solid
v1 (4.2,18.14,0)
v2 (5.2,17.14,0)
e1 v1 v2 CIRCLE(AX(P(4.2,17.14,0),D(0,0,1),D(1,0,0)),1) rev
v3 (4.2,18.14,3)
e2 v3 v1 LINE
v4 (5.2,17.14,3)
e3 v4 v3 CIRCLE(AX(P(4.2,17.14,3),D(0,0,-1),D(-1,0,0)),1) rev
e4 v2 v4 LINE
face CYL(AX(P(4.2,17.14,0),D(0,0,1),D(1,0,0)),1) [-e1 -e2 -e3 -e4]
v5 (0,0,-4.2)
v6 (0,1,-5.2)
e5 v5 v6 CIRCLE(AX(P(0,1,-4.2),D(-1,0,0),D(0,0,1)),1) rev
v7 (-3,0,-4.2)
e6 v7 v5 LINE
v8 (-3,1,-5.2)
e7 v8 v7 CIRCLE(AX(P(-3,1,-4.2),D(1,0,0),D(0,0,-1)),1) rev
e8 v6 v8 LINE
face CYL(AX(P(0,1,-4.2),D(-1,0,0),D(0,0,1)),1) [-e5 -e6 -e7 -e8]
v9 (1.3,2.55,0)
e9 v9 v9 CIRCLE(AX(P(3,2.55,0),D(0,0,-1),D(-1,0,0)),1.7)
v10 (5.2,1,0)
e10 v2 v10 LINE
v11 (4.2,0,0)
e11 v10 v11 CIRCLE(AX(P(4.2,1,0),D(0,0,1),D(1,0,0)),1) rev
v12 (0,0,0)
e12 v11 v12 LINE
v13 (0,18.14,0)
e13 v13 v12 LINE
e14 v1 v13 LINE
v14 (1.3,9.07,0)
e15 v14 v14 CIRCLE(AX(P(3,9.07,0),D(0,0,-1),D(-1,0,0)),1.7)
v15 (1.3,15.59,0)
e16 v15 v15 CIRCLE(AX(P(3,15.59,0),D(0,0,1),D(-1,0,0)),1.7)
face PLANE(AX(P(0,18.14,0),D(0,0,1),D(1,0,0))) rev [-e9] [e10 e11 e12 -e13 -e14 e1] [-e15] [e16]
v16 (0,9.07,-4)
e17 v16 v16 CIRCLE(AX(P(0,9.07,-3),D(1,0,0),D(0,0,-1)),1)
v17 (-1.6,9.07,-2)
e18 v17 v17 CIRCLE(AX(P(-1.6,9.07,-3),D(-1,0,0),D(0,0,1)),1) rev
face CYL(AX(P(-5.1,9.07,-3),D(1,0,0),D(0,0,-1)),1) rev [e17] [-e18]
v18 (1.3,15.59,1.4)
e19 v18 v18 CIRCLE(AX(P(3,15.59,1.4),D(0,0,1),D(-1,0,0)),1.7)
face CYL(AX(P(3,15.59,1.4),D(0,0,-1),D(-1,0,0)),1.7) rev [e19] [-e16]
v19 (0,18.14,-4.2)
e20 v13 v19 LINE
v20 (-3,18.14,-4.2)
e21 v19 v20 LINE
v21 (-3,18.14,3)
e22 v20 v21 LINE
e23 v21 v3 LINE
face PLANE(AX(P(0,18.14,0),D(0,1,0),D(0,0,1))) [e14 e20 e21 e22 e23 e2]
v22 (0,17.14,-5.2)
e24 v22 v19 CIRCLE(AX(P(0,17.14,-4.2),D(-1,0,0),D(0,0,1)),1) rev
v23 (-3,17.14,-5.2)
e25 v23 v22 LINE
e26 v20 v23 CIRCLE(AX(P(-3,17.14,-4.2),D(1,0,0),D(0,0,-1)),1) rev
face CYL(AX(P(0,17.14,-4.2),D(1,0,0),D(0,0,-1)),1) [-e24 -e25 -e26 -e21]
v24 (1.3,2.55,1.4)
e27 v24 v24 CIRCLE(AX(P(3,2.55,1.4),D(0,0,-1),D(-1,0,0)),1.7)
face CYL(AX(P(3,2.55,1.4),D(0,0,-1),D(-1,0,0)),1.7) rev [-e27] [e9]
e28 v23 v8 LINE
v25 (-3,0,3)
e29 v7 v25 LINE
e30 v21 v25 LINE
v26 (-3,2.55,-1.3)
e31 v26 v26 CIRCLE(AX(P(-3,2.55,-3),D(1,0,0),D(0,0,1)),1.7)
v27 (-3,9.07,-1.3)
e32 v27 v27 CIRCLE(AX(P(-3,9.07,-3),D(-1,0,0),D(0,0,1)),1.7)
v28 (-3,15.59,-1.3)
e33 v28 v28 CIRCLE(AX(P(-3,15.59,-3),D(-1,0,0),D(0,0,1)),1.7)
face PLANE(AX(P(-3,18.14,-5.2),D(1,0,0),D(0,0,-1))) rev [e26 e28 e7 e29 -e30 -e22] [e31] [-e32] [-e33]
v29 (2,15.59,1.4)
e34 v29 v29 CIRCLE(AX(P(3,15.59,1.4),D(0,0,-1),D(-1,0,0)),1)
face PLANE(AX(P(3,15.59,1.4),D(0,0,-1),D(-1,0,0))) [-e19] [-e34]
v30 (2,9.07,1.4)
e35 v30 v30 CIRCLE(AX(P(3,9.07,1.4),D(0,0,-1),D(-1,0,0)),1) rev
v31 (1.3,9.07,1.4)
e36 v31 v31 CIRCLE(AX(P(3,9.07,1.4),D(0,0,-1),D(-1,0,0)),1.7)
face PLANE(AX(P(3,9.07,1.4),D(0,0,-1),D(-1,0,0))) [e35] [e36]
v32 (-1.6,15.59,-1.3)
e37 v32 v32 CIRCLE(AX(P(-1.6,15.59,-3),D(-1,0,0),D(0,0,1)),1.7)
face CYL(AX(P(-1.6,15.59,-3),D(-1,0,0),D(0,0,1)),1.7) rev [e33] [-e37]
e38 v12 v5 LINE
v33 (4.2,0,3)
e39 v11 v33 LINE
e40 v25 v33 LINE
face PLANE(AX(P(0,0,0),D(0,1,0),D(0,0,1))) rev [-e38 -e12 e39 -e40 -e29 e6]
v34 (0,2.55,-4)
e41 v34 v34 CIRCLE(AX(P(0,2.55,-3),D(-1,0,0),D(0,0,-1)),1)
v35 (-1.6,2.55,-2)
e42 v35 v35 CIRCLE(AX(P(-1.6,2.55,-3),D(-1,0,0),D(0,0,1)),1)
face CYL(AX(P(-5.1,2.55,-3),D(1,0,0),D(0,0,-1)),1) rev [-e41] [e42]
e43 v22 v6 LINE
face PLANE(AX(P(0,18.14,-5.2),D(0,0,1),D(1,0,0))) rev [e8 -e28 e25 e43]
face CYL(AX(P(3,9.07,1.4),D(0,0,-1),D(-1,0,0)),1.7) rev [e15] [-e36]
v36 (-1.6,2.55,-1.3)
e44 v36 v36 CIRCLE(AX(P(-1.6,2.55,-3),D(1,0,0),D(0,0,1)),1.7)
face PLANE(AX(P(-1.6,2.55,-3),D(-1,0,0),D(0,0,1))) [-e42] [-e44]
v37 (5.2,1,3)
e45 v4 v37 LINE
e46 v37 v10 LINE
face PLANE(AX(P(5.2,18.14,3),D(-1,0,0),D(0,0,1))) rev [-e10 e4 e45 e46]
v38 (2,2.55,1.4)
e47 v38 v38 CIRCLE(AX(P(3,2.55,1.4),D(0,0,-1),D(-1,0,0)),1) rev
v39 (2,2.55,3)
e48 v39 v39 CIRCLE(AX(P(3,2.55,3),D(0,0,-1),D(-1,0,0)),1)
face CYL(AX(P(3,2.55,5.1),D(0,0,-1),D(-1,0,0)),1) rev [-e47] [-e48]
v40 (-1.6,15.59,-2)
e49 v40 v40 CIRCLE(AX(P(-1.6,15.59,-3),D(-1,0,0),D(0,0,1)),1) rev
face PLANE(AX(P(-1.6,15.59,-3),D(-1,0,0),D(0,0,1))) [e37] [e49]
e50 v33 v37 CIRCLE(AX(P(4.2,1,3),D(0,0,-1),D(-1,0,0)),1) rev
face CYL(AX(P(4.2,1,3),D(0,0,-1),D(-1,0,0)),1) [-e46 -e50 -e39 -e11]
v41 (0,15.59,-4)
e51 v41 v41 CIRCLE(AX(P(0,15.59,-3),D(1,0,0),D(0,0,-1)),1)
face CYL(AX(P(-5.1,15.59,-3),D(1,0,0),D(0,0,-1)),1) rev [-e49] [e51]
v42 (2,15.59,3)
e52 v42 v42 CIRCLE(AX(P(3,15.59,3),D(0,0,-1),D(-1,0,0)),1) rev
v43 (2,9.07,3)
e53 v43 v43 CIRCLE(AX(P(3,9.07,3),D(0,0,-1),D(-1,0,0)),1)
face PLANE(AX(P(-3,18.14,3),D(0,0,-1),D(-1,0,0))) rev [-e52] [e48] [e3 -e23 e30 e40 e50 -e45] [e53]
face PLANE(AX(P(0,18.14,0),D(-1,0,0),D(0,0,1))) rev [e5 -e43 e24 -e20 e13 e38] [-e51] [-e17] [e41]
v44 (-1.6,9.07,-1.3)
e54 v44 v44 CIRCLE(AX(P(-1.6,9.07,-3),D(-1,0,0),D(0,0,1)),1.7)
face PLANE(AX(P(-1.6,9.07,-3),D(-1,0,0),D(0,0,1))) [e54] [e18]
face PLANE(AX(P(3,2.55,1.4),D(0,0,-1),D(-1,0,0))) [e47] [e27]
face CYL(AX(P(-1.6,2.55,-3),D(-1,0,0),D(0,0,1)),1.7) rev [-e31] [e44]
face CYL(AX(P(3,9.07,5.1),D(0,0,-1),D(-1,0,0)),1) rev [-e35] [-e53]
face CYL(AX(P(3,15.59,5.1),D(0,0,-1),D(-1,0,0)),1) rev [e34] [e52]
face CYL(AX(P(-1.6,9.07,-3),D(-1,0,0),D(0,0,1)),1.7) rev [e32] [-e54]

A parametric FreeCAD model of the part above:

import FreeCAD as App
import Part
import Sketcher
Q = App.Units.Quantity


def edges_at(feature, points):
    """Names of the edges that pass closest to the given points."""
    edges = feature.Shape.Edges
    near = lambda p: min(range(len(edges)), key=lambda i: edges[i].distToShape(Part.Vertex(*p))[0])
    return sorted({f"Edge{near(p) + 1}" for p in points})


def add_polygon(sketch, points):
    """Adds a closed chain of lines whose ends are joined by coincident constraints."""
    first, n = sketch.GeometryCount, len(points)
    for a, b in zip(points, points[1:] + points[:1]):
        sketch.addGeometry(Part.LineSegment(App.Vector(*a, 0), App.Vector(*b, 0)), False)
    for i in range(n):
        sketch.addConstraint(Sketcher.Constraint("Coincident", first + i, 2, first + (i + 1) % n, 1))

doc = App.newDocument("Part")
body = doc.addObject("PartDesign::Body", "Body")

# Sketch on XZ plane
sketch1 = doc.addObject("Sketcher::SketchObject", "Sketch")
body.addObject(sketch1)
sketch1.AttachmentSupport = (doc.XZ_Plane, [""])
sketch1.MapMode = "FlatFace"
add_polygon(sketch1, [(0, 0), (0, -5.2), (-3, -5.2), (-3, 3), (5.2, 3), (5.2, 0)])  # lines 0-5
sketch1.addConstraint(Sketcher.Constraint("Vertical", 0))
sketch1.addConstraint(Sketcher.Constraint("Horizontal", 1))
sketch1.addConstraint(Sketcher.Constraint("Vertical", 2))
sketch1.addConstraint(Sketcher.Constraint("Horizontal", 3))
sketch1.addConstraint(Sketcher.Constraint("Vertical", 4))
sketch1.addConstraint(Sketcher.Constraint("Horizontal", 5))
sketch1.addConstraint(Sketcher.Constraint("Coincident", 5, 2, -1, 1))
sketch1.addConstraint(Sketcher.Constraint("Equal", 5, 0))
sketch1.addConstraint(Sketcher.Constraint("Equal", 3, 2))
sketch1.addConstraint(Sketcher.Constraint("DistanceX", 1, 2, 1, 1, Q("3 mm")))
sketch1.addConstraint(Sketcher.Constraint("DistanceX", 3, 1, 3, 2, Q("8.2 mm")))
pad1 = doc.addObject("PartDesign::Pad", "Pad")
body.addObject(pad1)
pad1.Profile = sketch1
pad1.Length = 18.14
pad1.Reversed = True
doc.recompute()

fillet = doc.addObject("PartDesign::Fillet", "Fillet")
body.addObject(fillet)
fillet.Base = (pad1, edges_at(pad1, [
    (-1.5, 18.14, -5.2),
    (5.2, 18.14, 1.5),
    (5.2, 0, 1.5),
    (-1.5, 0, -5.2),
]))
fillet.Radius = 1

# Sketch on YZ plane
sketch2 = doc.addObject("Sketcher::SketchObject", "Sketch001")
body.addObject(sketch2)
sketch2.AttachmentSupport = (doc.YZ_Plane, [""])
sketch2.MapMode = "FlatFace"
sketch2.addGeometry(Part.Circle(App.Vector(15.59, -3, 0), App.Vector(0, 0, 1), 1), False)
sketch2.addConstraint(Sketcher.Constraint("Diameter", 0, Q("2 mm")))
sketch2.addConstraint(Sketcher.Constraint("DistanceY", 0, 3, -1, 1, Q("3 mm")))
sketch2.addConstraint(Sketcher.Constraint("DistanceX", -1, 1, 0, 3, Q("15.59 mm")))
pocket1 = doc.addObject("PartDesign::Pocket", "Pocket")
body.addObject(pocket1)
pocket1.Profile = sketch2
pocket1.Length = 5.1

# Sketch on XY plane
sketch3 = doc.addObject("Sketcher::SketchObject", "Sketch002")
body.addObject(sketch3)
sketch3.AttachmentSupport = (doc.XY_Plane, [""])
sketch3.MapMode = "FlatFace"
sketch3.addGeometry(Part.Circle(App.Vector(3, 2.55, 0), App.Vector(0, 0, 1), 1), False)
sketch3.addConstraint(Sketcher.Constraint("Diameter", 0, Q("2 mm")))
sketch3.addConstraint(Sketcher.Constraint("DistanceX", -1, 1, 0, 3, Q("3 mm")))
sketch3.addConstraint(Sketcher.Constraint("DistanceY", -1, 1, 0, 3, Q("2.55 mm")))
pocket2 = doc.addObject("PartDesign::Pocket", "Pocket001")
body.addObject(pocket2)
pocket2.Profile = sketch3
pocket2.Length = 5.1
pocket2.Reversed = True

# Sketch on XY plane
sketch4 = doc.addObject("Sketcher::SketchObject", "Sketch003")
body.addObject(sketch4)
sketch4.AttachmentSupport = (doc.XY_Plane, [""])
sketch4.MapMode = "FlatFace"
sketch4.addGeometry(Part.Circle(App.Vector(3, 2.55, 0), App.Vector(0, 0, 1), 1.7), False)
sketch4.addConstraint(Sketcher.Constraint("Diameter", 0, Q("3.4 mm")))
sketch4.addConstraint(Sketcher.Constraint("DistanceX", -1, 1, 0, 3, Q("3 mm")))
sketch4.addConstraint(Sketcher.Constraint("DistanceY", -1, 1, 0, 3, Q("2.55 mm")))
pocket3 = doc.addObject("PartDesign::Pocket", "Pocket002")
body.addObject(pocket3)
pocket3.Profile = sketch4
pocket3.Length = 1.4
pocket3.Reversed = True

# Sketch on YZ plane
sketch5 = doc.addObject("Sketcher::SketchObject", "Sketch004")
body.addObject(sketch5)
sketch5.AttachmentSupport = (doc.YZ_Plane, [""])
sketch5.MapMode = "FlatFace"
sketch5.AttachmentOffset = App.Placement(App.Vector(0, 0, -3), App.Rotation())
sketch5.addGeometry(Part.Circle(App.Vector(15.59, -3, 0), App.Vector(0, 0, 1), 1.7), False)
sketch5.addConstraint(Sketcher.Constraint("Diameter", 0, Q("3.4 mm")))
sketch5.addConstraint(Sketcher.Constraint("DistanceY", 0, 3, -1, 1, Q("3 mm")))
sketch5.addConstraint(Sketcher.Constraint("DistanceX", -1, 1, 0, 3, Q("15.59 mm")))
pocket4 = doc.addObject("PartDesign::Pocket", "Pocket003")
body.addObject(pocket4)
pocket4.Profile = sketch5
pocket4.Length = 1.4
pocket4.Reversed = True
doc.recompute()

datumplane = doc.addObject("PartDesign::Plane", "DatumPlane")
body.addObject(datumplane)
datumplane.AttachmentSupport = (doc.XZ_Plane, [""])
datumplane.MapMode = "FlatFace"
datumplane.AttachmentOffset = App.Placement(App.Vector(0, 0, -9.07), App.Rotation())
mirrored = doc.addObject("PartDesign::Mirrored", "Mirrored")
body.addObject(mirrored)
mirrored.Originals = [pocket1, pocket2, pocket3, pocket4]
mirrored.MirrorPlane = (datumplane, [""])
body.Tip = mirrored
doc.recompute()

linearpattern = doc.addObject("PartDesign::LinearPattern", "LinearPattern")
body.addObject(linearpattern)
linearpattern.Originals = [pocket1, pocket4]
linearpattern.Direction = (doc.Y_Axis, [""])
linearpattern.Mode = "offset"
linearpattern.Offset = 6.52
linearpattern.Occurrences = 2
linearpattern.Reversed = True
body.Tip = linearpattern
doc.recompute()

linearpattern2 = doc.addObject("PartDesign::LinearPattern", "LinearPattern001")
body.addObject(linearpattern2)
linearpattern2.Originals = [pocket2, pocket3]
linearpattern2.Direction = (doc.Y_Axis, [""])
linearpattern2.Mode = "offset"
linearpattern2.Offset = 6.52
linearpattern2.Occurrences = 2
body.Tip = linearpattern2

doc.recompute()
